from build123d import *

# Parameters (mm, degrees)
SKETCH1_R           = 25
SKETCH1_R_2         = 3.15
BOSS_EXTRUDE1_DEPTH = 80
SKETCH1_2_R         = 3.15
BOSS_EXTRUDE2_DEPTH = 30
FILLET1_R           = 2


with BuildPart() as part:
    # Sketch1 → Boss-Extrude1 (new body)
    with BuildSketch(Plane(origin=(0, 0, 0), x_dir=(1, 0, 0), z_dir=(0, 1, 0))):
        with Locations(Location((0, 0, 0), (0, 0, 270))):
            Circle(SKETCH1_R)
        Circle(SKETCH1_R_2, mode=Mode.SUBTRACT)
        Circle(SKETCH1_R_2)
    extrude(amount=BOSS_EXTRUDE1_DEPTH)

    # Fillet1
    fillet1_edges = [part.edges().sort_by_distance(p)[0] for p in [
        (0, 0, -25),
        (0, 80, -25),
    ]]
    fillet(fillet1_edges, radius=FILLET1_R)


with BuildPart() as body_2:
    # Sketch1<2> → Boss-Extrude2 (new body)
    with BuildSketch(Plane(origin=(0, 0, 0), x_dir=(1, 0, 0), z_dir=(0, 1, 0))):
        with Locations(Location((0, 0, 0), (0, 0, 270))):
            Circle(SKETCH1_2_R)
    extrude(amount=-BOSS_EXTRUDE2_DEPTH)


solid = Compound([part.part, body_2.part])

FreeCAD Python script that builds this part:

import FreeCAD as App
import Part
import Sketcher

V = App.Vector
Q = App.Units.Quantity


def edges_at(feature, points):
    """Names of the edges that pass closest to the given points."""
    edges = feature.Shape.Edges
    near = lambda p: min(range(len(edges)), key=lambda i: edges[i].distToShape(Part.Vertex(*p))[0])
    return sorted({f"Edge{near(p) + 1}" for p in points})

doc = App.newDocument("Part")
body = doc.addObject("PartDesign::Body", "Body")

# Sketch on XZ plane
sketch1 = body.newObject("Sketcher::SketchObject", "Sketch")
sketch1.AttachmentSupport = (doc.getObject("XZ_Plane"), [""])
sketch1.MapMode = "FlatFace"
sketch1.addGeometry(Part.Circle(V(0, 0, 0), V(0, 0, 1), 25), False)
sketch1.addConstraint(Sketcher.Constraint("Coincident", 0, 3, -1, 1))
sketch1.addConstraint(Sketcher.Constraint("Diameter", 0, Q("50 mm")))
pad1 = body.newObject("PartDesign::Pad", "Pad")
pad1.Profile = sketch1
pad1.Length = 80
pad1.Reversed = True
doc.recompute()

fillet = body.newObject("PartDesign::Fillet", "Fillet")
fillet.Base = (pad1, edges_at(pad1, [(0, 0, -25), (0, 80, -25)]))
fillet.Radius = 2
body2 = doc.addObject("PartDesign::Body", "Body001")

# Sketch on XZ plane
sketch2 = body2.newObject("Sketcher::SketchObject", "Sketch001")
sketch2.AttachmentSupport = (doc.getObject("XZ_Plane001"), [""])
sketch2.MapMode = "FlatFace"
sketch2.addGeometry(Part.Circle(V(0, 0, 0), V(0, 0, 1), 3.1), False)
sketch2.addConstraint(Sketcher.Constraint("Coincident", 0, 3, -1, 1))
sketch2.addConstraint(Sketcher.Constraint("Diameter", 0, Q("6.3 mm")))
pad2 = body2.newObject("PartDesign::Pad", "Pad001")
pad2.Profile = sketch2
pad2.Length = 30

doc.recompute()
